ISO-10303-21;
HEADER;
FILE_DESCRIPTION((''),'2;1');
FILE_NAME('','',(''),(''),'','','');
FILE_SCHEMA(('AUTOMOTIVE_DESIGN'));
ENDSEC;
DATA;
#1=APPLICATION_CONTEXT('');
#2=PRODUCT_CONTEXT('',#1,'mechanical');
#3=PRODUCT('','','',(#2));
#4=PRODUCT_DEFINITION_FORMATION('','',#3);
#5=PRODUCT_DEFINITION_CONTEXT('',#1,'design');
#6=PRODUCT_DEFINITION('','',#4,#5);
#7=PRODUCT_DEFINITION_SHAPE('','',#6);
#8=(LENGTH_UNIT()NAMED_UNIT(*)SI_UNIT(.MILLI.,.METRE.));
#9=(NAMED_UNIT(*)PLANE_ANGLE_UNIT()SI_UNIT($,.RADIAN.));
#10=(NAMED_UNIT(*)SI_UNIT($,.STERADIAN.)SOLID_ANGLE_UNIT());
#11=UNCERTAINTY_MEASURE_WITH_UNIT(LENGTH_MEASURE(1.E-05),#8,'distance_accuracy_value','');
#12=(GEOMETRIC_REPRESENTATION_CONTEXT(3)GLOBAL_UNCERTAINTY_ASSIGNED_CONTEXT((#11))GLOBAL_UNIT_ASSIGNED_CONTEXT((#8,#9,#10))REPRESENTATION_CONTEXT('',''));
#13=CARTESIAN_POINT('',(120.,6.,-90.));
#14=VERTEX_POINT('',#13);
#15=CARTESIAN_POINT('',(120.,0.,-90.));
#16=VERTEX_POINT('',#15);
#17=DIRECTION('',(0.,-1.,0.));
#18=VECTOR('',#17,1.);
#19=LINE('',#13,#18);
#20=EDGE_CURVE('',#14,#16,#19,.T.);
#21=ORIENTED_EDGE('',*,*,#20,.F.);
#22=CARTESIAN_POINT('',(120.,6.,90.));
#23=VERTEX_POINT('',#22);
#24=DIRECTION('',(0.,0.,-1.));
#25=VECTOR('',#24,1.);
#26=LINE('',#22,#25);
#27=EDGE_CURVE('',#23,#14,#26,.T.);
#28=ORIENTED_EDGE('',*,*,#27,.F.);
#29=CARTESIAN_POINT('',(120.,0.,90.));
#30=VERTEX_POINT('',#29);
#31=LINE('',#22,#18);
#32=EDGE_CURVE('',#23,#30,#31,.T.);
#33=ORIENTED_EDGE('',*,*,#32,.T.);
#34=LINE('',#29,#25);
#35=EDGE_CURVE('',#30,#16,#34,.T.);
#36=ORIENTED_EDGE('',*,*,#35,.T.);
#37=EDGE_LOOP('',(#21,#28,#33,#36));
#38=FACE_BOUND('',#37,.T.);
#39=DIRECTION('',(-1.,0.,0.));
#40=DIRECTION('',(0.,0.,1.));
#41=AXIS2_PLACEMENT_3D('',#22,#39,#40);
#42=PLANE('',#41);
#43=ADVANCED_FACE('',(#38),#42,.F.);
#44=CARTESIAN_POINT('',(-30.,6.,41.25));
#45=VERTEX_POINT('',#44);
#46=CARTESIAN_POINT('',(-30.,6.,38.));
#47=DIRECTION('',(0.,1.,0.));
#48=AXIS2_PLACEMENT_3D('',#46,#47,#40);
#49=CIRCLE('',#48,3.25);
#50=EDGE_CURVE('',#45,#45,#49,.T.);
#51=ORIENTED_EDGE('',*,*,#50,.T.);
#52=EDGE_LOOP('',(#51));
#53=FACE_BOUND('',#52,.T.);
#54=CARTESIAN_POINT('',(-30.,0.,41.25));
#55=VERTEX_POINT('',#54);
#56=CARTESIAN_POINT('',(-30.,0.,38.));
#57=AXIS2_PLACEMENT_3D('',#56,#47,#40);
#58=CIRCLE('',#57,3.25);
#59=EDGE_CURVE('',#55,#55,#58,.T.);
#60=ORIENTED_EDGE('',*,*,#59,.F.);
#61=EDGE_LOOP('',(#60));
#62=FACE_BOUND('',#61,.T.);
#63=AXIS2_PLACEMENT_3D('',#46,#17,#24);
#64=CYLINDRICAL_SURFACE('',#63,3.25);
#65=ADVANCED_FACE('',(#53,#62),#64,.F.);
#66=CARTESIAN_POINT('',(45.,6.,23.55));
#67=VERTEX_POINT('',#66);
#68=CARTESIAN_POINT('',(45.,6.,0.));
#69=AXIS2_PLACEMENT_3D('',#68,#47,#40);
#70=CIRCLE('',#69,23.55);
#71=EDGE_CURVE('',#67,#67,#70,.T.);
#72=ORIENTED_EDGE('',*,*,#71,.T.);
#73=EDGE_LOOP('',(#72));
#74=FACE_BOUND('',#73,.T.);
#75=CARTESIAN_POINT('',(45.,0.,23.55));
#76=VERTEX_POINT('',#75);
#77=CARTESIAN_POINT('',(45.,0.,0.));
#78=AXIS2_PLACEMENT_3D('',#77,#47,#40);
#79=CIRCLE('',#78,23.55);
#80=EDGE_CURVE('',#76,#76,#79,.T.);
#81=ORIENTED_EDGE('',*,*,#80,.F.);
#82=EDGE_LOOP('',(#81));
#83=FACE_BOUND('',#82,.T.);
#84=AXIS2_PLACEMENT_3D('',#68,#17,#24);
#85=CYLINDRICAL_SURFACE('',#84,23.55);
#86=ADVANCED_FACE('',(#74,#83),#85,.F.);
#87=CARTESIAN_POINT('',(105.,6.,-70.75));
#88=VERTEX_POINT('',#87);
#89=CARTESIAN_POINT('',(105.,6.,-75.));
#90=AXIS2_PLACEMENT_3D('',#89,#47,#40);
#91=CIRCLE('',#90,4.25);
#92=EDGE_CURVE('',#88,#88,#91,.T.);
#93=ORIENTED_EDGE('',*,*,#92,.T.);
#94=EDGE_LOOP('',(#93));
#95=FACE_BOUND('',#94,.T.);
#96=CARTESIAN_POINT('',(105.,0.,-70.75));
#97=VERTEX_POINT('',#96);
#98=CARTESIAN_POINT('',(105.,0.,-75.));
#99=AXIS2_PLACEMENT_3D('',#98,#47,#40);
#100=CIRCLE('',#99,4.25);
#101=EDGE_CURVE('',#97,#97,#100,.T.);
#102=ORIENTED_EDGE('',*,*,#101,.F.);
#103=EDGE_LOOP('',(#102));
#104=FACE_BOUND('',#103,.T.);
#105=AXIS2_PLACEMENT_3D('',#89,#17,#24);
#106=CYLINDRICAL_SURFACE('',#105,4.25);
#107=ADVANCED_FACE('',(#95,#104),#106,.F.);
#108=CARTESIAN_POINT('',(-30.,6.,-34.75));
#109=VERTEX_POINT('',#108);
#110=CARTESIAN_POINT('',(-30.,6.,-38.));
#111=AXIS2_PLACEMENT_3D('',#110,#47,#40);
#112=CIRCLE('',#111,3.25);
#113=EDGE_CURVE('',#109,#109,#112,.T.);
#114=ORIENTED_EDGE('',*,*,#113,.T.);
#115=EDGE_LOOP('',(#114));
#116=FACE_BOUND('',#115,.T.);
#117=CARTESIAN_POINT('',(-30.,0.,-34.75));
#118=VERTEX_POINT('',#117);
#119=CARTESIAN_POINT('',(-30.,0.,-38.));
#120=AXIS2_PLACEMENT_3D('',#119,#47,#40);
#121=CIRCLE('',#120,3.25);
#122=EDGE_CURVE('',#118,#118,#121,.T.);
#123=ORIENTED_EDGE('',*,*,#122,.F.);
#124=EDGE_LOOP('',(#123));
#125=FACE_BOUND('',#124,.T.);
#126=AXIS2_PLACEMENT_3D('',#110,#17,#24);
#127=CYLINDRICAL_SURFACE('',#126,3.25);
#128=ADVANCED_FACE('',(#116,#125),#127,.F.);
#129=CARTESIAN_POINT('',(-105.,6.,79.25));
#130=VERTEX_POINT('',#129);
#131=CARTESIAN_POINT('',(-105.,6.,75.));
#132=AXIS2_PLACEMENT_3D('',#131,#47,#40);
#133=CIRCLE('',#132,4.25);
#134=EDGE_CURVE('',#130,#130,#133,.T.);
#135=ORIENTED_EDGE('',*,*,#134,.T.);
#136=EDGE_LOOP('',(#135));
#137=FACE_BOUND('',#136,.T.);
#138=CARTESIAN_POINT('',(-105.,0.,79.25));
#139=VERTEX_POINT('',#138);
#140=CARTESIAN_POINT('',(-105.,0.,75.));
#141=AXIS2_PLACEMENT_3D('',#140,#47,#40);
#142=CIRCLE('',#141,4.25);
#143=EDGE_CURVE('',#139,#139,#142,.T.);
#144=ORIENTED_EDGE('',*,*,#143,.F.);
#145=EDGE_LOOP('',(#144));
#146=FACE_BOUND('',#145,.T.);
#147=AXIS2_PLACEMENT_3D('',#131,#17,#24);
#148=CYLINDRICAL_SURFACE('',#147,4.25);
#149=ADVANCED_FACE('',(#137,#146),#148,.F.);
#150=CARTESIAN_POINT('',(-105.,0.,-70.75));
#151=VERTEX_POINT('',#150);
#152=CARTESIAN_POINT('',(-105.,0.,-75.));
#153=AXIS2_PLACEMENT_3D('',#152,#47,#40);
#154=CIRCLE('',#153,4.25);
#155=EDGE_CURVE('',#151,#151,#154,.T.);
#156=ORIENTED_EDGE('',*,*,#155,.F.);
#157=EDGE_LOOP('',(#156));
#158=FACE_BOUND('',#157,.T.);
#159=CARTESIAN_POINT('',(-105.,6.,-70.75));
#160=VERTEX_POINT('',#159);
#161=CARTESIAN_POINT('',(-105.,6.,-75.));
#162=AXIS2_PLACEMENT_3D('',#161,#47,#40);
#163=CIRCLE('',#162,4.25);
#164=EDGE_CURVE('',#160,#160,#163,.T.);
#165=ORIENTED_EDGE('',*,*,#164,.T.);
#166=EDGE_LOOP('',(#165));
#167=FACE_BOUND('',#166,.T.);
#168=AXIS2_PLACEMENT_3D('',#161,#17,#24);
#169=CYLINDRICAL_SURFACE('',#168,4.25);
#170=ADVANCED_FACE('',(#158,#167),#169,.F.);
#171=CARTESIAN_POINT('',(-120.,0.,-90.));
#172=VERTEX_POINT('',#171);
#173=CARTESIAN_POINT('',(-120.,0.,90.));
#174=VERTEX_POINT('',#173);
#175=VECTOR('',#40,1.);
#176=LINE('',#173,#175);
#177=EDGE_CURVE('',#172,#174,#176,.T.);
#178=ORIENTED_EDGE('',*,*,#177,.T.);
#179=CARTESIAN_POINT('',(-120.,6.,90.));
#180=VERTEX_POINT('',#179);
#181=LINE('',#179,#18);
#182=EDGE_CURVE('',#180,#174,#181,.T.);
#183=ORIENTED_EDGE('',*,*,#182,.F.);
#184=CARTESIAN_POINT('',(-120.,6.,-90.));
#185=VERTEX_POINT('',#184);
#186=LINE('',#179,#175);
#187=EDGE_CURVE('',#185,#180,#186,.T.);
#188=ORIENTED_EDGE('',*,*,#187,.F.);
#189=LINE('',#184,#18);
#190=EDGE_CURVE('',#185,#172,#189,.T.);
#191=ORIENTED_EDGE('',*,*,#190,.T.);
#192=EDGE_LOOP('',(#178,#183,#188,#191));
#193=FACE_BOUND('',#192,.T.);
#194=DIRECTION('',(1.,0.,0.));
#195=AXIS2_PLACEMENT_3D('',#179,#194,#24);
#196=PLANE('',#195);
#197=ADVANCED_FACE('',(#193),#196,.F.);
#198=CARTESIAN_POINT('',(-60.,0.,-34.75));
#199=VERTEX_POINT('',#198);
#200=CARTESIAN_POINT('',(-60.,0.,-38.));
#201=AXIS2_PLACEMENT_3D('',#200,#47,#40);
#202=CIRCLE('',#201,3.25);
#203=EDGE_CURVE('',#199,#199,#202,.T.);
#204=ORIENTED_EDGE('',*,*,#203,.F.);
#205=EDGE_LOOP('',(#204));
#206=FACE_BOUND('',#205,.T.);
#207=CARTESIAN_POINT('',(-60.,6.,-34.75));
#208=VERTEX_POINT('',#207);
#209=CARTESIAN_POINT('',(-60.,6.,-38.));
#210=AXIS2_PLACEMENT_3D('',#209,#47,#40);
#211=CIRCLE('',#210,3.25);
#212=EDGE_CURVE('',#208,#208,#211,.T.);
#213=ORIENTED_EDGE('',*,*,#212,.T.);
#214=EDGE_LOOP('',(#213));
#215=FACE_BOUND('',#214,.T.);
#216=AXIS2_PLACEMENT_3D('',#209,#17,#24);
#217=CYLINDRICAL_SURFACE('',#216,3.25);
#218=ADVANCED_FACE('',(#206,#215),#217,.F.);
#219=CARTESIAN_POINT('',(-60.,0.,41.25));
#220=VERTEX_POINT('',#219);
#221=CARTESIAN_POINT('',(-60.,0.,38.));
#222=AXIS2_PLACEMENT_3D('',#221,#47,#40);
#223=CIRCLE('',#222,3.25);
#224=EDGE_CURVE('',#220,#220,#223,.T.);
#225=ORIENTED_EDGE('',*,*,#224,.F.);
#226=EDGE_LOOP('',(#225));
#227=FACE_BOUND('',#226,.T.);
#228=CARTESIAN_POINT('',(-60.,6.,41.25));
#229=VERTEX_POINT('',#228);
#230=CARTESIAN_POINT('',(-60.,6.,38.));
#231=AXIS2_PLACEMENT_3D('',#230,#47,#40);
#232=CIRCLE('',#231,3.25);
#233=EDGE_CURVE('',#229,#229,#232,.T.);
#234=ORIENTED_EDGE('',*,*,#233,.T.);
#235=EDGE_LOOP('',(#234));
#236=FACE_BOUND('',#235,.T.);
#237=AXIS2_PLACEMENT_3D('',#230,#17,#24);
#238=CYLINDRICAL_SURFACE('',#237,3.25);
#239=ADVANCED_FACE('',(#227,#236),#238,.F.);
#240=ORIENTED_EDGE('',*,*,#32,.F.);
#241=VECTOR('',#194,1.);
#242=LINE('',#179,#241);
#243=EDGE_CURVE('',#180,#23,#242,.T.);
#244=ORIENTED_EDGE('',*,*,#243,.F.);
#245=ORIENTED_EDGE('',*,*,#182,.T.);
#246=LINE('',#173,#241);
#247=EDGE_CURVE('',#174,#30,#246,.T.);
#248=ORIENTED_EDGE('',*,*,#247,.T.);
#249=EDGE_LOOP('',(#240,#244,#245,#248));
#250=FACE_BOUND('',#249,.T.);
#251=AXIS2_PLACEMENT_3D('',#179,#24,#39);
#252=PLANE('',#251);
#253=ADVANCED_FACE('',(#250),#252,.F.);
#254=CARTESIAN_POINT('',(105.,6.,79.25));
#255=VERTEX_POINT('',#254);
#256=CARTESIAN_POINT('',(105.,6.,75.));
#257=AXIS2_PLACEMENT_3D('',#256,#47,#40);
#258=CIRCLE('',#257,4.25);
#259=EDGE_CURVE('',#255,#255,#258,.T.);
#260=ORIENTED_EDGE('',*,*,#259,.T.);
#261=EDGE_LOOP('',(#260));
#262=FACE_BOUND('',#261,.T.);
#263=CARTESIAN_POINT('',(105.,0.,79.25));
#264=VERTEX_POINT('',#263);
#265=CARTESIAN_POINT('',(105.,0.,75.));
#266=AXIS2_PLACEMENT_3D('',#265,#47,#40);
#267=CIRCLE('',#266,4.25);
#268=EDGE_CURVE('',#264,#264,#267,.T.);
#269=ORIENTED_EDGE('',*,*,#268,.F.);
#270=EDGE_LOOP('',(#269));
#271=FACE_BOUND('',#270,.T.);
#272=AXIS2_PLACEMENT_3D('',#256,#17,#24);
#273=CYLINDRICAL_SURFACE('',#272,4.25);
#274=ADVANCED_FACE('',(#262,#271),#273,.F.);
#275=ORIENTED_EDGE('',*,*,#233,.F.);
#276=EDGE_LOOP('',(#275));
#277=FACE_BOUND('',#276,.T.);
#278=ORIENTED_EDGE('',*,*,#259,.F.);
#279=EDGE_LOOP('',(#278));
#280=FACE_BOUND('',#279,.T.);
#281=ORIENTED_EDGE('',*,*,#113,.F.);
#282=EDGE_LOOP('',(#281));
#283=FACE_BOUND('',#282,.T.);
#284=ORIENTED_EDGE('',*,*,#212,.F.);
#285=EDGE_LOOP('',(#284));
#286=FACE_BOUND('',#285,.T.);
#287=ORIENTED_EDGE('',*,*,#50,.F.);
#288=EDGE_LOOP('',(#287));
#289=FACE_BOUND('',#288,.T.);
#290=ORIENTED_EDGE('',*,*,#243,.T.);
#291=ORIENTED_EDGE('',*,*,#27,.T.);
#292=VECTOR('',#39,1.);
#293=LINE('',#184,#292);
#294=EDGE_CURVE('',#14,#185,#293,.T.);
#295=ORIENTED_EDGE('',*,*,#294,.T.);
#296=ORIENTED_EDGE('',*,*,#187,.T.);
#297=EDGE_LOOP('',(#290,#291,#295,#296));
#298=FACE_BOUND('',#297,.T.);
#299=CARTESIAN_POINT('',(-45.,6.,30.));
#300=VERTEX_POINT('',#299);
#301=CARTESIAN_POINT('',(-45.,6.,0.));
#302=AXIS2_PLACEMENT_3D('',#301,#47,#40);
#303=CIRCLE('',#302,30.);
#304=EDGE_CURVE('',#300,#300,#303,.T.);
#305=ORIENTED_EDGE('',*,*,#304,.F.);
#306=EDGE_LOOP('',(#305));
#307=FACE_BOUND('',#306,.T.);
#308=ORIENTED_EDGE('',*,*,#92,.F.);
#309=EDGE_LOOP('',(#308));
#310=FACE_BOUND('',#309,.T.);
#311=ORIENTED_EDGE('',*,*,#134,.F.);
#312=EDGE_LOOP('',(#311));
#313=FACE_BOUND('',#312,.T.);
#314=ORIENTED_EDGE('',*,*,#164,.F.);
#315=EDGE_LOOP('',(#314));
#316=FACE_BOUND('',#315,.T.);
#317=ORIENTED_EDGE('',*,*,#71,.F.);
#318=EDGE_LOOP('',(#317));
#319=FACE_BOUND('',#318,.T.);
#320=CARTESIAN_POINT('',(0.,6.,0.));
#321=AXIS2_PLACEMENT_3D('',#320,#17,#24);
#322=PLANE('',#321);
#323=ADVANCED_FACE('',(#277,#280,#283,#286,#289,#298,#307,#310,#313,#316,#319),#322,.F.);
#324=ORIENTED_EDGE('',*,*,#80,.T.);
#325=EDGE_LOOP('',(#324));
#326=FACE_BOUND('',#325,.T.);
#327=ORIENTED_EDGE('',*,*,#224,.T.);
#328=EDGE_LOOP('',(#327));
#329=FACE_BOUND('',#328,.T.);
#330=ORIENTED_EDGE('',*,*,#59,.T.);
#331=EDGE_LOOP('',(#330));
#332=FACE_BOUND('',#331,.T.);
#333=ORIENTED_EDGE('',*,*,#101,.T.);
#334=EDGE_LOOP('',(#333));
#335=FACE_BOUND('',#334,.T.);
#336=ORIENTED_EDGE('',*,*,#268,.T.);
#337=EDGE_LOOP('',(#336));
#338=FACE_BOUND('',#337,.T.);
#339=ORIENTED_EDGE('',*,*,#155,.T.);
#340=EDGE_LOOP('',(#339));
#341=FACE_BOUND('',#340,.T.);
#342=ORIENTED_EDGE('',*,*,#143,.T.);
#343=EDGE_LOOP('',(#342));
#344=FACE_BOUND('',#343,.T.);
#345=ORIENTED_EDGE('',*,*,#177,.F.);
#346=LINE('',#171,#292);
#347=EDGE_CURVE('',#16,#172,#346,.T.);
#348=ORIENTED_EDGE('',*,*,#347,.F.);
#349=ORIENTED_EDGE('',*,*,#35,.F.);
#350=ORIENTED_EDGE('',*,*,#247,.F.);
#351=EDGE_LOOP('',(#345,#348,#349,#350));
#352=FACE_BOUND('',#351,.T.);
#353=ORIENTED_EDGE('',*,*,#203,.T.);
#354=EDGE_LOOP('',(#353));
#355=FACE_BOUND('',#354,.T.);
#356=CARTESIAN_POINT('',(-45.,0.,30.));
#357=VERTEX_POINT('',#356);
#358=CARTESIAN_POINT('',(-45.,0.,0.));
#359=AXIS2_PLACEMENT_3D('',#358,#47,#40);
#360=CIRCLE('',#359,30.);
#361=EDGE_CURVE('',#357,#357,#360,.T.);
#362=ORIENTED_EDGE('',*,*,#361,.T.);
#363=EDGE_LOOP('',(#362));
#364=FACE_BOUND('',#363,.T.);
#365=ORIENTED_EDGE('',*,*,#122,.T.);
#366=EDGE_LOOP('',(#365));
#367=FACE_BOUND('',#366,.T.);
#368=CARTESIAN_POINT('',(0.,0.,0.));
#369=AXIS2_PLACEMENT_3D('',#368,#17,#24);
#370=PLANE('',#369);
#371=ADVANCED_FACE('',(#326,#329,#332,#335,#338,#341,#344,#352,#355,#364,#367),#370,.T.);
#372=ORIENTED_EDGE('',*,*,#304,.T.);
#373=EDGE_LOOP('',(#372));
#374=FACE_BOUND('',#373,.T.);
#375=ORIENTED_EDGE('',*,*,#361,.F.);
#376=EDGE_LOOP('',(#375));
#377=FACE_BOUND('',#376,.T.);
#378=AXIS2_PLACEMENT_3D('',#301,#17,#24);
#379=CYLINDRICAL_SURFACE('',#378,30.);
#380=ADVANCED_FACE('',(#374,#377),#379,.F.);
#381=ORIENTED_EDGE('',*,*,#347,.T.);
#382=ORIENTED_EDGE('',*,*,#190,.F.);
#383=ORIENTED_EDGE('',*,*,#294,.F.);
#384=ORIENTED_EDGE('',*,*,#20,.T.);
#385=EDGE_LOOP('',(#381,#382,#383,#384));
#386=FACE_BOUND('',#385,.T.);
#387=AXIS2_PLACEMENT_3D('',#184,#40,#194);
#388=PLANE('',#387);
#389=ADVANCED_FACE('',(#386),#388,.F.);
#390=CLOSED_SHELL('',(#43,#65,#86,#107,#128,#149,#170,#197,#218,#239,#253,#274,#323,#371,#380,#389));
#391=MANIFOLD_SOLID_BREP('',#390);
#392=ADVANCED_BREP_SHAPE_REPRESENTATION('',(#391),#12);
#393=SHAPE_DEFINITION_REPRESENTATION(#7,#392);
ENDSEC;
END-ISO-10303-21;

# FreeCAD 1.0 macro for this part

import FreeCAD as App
import Part
import Sketcher
from FreeCAD import Vector

doc = App.newDocument("Part")
body = doc.addObject("PartDesign::Body", "Body")

sketch1 = body.newObject("Sketcher::SketchObject", "Sketch")
sketch1.AttachmentSupport = (doc.getObject("XZ_Plane"), [""])
sketch1.MapMode = "FlatFace"
sketch1.addGeometry([
    Part.LineSegment(Vector(-120, -90, 0), Vector(-120, 90, 0)),
    Part.LineSegment(Vector(-120, 90, 0), Vector(120, 90, 0)),
    Part.LineSegment(Vector(120, 90, 0), Vector(120, -90, 0)),
    Part.LineSegment(Vector(120, -90, 0), Vector(-120, -90, 0)),
    Part.Circle(Vector(-105, 75, 0), Vector(0, 0, 1), 4.25),
    Part.Circle(Vector(-60, 38, 0), Vector(0, 0, 1), 3.25),
    Part.Circle(Vector(-30, 38, 0), Vector(0, 0, 1), 3.25),
    Part.Circle(Vector(105, 75, 0), Vector(0, 0, 1), 4.25),
    Part.Circle(Vector(-60, -38, 0), Vector(0, 0, 1), 3.25),
    Part.Circle(Vector(-45, 0, 0), Vector(0, 0, 1), 30),
    Part.Circle(Vector(-30, -38, 0), Vector(0, 0, 1), 3.25),
    Part.Circle(Vector(-105, -75, 0), Vector(0, 0, 1), 4.25),
    Part.Circle(Vector(45, 0, 0), Vector(0, 0, 1), 23.55),
    Part.Circle(Vector(105, -75, 0), Vector(0, 0, 1), 4.25),
], False)
sketch1.addConstraint([
    Sketcher.Constraint("Coincident", 0, 2, 1, 1),
    Sketcher.Constraint("Coincident", 1, 2, 2, 1),
    Sketcher.Constraint("Coincident", 2, 2, 3, 1),
    Sketcher.Constraint("Coincident", 3, 2, 0, 1),
    Sketcher.Constraint("Vertical", 0),
    Sketcher.Constraint("Horizontal", 1),
    Sketcher.Constraint("Vertical", 2),
    Sketcher.Constraint("Horizontal", 3),
    Sketcher.Constraint("Equal", 5, 6),
    Sketcher.Constraint("Equal", 4, 7),
    Sketcher.Constraint("Equal", 6, 8),
    Sketcher.Constraint("Equal", 8, 10),
    Sketcher.Constraint("Equal", 7, 11),
    Sketcher.Constraint("Equal", 11, 13),
    Sketcher.Constraint("Symmetric", 7, 3, 11, 3, -1, 1),
    Sketcher.Constraint("Symmetric", 9, 3, 12, 3, -1, 1),
    Sketcher.Constraint("Symmetric", 4, 3, 13, 3, -1, 1),
    Sketcher.Constraint("Symmetric", 0, 2, 2, 2, -1, 1),
    Sketcher.Constraint("Symmetric", 4, 3, 7, 3, -2),
    Sketcher.Constraint("Symmetric", 5, 3, 8, 3, -1),
    Sketcher.Constraint("Symmetric", 6, 3, 10, 3, -1),
    Sketcher.Constraint("PointOnObject", 9, 3, -1),
    Sketcher.Constraint("Horizontal", 5, 3, 6, 3),
    Sketcher.Constraint("Diameter", 9, 60.0),
    Sketcher.Constraint("Diameter", 4, 8.5),
    Sketcher.Constraint("Diameter", 5, 6.5),
    Sketcher.Constraint("Diameter", 12, 47.1),
    Sketcher.Constraint("DistanceX", 1, 1, 1, 2, 240.0),
    Sketcher.Constraint("DistanceY", 0, 1, 0, 2, 180.0),
    Sketcher.Constraint("DistanceX", 4, 3, -1, 1, 105.0),
    Sketcher.Constraint("DistanceY", -1, 1, 4, 3, 75.0),
    Sketcher.Constraint("DistanceX", 5, 3, -1, 1, 60.0),
    Sketcher.Constraint("DistanceY", -1, 1, 5, 3, 38.0),
    Sketcher.Constraint("DistanceX", 6, 3, -1, 1, 30.0),
    Sketcher.Constraint("DistanceX", 9, 3, -1, 1, 45.0),
])
pad1 = body.newObject("PartDesign::Pad", "Pad")
pad1.Profile = sketch1
pad1.Length = 6
pad1.Reversed = True

doc.recompute()
